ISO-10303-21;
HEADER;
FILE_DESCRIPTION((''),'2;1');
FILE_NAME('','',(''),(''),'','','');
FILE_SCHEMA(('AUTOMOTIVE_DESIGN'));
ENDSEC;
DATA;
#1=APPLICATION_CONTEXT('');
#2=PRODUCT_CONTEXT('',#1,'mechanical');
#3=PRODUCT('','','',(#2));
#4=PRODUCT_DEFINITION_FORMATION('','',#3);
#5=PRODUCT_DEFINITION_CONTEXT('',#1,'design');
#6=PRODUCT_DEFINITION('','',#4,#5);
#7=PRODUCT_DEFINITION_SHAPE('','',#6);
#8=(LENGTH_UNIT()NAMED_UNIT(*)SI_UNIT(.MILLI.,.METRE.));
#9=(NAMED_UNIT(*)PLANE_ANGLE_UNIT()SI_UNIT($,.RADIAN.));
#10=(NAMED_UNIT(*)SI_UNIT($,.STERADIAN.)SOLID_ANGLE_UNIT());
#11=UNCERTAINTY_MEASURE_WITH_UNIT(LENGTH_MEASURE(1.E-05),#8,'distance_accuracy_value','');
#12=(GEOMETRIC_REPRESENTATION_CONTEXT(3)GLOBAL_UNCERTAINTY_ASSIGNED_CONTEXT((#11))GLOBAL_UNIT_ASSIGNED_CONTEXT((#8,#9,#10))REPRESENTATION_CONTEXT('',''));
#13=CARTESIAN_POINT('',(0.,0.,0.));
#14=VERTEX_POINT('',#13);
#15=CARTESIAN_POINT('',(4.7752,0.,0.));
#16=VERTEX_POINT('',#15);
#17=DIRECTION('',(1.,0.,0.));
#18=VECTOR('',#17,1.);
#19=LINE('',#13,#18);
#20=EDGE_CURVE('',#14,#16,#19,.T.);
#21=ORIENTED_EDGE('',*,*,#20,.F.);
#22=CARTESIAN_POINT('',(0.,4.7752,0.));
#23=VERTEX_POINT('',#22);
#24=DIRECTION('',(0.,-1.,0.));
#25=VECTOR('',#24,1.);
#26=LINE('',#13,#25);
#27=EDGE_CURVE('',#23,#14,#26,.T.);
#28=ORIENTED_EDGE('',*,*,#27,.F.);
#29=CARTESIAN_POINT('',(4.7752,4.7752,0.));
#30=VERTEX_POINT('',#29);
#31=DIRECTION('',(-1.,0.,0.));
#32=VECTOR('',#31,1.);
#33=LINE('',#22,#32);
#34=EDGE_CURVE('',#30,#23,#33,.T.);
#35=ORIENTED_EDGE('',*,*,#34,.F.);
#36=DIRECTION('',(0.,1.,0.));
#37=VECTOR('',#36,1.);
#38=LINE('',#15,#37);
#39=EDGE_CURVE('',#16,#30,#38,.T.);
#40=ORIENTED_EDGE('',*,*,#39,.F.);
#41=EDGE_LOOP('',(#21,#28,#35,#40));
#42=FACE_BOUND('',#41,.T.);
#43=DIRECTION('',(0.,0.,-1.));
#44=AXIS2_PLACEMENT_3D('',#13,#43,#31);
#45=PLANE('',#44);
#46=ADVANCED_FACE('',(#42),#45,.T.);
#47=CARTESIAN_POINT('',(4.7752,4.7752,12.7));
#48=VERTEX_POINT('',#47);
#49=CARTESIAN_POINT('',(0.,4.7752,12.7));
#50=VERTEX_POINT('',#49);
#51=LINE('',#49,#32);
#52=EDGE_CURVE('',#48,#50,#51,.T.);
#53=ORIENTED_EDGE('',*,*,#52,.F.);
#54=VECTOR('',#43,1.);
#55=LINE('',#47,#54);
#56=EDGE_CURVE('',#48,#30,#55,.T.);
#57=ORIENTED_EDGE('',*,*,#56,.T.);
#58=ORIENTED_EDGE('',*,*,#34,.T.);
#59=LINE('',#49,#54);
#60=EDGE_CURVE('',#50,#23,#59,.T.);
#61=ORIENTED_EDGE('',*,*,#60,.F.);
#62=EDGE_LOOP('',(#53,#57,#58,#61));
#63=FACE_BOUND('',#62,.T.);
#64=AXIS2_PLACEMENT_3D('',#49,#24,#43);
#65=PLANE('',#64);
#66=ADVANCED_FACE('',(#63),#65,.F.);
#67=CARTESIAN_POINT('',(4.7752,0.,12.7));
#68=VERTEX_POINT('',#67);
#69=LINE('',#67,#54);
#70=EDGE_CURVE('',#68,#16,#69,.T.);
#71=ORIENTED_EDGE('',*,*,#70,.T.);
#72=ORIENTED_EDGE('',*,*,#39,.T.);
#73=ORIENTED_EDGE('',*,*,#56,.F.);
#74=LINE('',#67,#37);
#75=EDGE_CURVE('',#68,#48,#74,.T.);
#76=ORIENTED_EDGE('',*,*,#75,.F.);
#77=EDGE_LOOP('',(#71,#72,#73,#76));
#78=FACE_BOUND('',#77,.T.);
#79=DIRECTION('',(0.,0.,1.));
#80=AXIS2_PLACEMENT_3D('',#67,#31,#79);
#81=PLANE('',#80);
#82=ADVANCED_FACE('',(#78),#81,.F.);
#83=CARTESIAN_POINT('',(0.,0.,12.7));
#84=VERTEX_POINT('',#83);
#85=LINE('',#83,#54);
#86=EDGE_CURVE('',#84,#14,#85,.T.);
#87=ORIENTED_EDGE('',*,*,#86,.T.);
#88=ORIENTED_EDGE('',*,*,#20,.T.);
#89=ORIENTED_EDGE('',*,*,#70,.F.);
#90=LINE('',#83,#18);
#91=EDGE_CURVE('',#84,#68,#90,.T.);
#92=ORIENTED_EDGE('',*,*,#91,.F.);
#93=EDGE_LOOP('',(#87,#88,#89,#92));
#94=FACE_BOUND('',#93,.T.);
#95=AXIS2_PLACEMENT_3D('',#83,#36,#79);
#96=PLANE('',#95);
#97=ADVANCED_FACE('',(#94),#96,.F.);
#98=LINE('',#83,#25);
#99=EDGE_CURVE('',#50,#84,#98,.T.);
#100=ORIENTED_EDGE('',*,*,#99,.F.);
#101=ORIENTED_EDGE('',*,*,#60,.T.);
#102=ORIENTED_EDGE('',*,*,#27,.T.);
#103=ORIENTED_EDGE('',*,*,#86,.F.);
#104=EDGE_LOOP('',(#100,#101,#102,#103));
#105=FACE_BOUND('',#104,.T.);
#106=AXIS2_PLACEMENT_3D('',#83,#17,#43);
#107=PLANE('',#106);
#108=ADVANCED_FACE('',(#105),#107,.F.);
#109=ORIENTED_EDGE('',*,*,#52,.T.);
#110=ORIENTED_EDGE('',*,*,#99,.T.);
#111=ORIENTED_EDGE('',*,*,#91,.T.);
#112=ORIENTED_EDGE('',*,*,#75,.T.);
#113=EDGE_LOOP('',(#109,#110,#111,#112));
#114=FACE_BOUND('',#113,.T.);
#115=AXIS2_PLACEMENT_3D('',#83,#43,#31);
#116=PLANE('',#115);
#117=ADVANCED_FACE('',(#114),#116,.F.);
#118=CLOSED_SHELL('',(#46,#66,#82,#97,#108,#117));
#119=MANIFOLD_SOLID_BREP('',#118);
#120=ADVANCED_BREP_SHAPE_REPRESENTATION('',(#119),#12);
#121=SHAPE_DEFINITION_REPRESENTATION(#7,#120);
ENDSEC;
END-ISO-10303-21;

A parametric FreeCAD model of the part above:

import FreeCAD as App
import Part
import Sketcher
Q = App.Units.Quantity


def add_polygon(sketch, points):
    """Adds a closed chain of lines whose ends are joined by coincident constraints."""
    first, n = sketch.GeometryCount, len(points)
    for a, b in zip(points, points[1:] + points[:1]):
        sketch.addGeometry(Part.LineSegment(App.Vector(*a, 0), App.Vector(*b, 0)), False)
    for i in range(n):
        sketch.addConstraint(Sketcher.Constraint("Coincident", first + i, 2, first + (i + 1) % n, 1))

doc = App.newDocument("Part")
body = doc.addObject("PartDesign::Body", "Body")

sketch1 = body.newObject("Sketcher::SketchObject", "Sketch")
sketch1.AttachmentSupport = (doc.getObject("XY_Plane"), [""])
sketch1.MapMode = "FlatFace"
add_polygon(sketch1, [(0, 4.7752), (0, 0), (4.7752, 0), (4.7752, 4.7752)])
sketch1.addConstraint([
    Sketcher.Constraint("Vertical", 0),
    Sketcher.Constraint("Horizontal", 1),
    Sketcher.Constraint("Vertical", 2),
    Sketcher.Constraint("Horizontal", 3),
    Sketcher.Constraint("Coincident", 0, 2, -1, 1),
    Sketcher.Constraint("Equal", 3, 0),
    Sketcher.Constraint("DistanceX", 1, 1, 1, 2, Q("0.188 in")),
])
pad1 = body.newObject("PartDesign::Pad", "Pad")
pad1.Profile = sketch1
pad1.Length = Q("0.5 in")

doc.recompute()
